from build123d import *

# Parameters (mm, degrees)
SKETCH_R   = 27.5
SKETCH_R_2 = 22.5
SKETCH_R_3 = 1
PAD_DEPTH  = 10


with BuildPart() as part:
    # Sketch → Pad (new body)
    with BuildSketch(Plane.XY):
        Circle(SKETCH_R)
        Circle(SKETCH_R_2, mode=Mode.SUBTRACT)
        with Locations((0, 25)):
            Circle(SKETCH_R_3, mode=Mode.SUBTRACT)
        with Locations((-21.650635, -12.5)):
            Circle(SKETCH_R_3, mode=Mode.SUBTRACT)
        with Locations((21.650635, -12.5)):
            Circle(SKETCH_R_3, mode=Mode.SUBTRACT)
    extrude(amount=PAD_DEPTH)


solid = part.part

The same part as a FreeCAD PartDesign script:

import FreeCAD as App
import Part
import Sketcher
from FreeCAD import Vector
Q = App.Units.Quantity

doc = App.newDocument("Part")
body = doc.addObject("PartDesign::Body", "Body")

# Sketch on XY plane
sketch1 = body.newObject("Sketcher::SketchObject", "Sketch")
sketch1.AttachmentSupport = (doc.getObject("XY_Plane"), [""])
sketch1.MapMode = "FlatFace"
sketch1.addGeometry([
    Part.Circle(Vector(0, 0, 0), Vector(0, 0, 1), 27.5),  # 0
    Part.Circle(Vector(-21.7, -12.5, 0), Vector(0, 0, 1), 1),  # 1
    Part.Circle(Vector(21.7, -12.5, 0), Vector(0, 0, 1), 1),  # 2
    Part.Circle(Vector(0, 0, 0), Vector(0, 0, 1), 22.5),  # 3
    Part.Circle(Vector(0, 25, 0), Vector(0, 0, 1), 1),  # 4
], False)
sketch1.addConstraint([
    Sketcher.Constraint("Coincident", 0, 3, -1, 1),
    Sketcher.Constraint("Coincident", 3, 3, -1, 1),
    Sketcher.Constraint("Equal", 1, 2),
    Sketcher.Constraint("Equal", 2, 4),
    Sketcher.Constraint("Symmetric", 1, 3, 2, 3, -2),
    Sketcher.Constraint("PointOnObject", 4, 3, -2),
    Sketcher.Constraint("Diameter", 0, Q("55 mm")),
    Sketcher.Constraint("Diameter", 1, Q("2 mm")),
    Sketcher.Constraint("Diameter", 3, Q("45 mm")),
    Sketcher.Constraint("DistanceY", -1, 1, 4, 3, Q("25 mm")),
    Sketcher.Constraint("DistanceY", 1, 3, -1, 1, Q("12.5 mm")),
    Sketcher.Constraint("DistanceX", 1, 3, 2, 3, Q("43.30127 mm")),
])
pad1 = body.newObject("PartDesign::Pad", "Pad")
pad1.Profile = sketch1
pad1.Length = 10

doc.recompute()
